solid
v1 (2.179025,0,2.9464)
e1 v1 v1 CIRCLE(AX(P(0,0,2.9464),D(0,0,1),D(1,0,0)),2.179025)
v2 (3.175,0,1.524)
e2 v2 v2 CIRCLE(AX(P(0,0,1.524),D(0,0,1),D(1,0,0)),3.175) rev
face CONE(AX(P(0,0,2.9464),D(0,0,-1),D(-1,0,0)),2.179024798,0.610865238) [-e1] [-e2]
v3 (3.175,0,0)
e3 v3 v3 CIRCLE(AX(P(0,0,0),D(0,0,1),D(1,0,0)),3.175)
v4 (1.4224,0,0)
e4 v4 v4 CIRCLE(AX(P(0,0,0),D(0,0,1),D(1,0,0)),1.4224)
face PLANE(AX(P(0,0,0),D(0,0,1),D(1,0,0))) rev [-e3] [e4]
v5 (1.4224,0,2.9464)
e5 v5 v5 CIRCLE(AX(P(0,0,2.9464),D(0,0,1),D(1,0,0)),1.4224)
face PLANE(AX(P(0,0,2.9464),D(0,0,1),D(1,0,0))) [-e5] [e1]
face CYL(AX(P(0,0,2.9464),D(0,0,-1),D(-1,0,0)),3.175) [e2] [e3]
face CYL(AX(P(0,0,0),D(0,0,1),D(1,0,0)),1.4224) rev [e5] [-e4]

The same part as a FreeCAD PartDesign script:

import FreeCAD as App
import Part
import Sketcher

V = App.Vector
Q = App.Units.Quantity


def edges_at(feature, points):
    """Names of the edges that pass closest to the given points."""
    edges = feature.Shape.Edges
    near = lambda p: min(range(len(edges)), key=lambda i: edges[i].distToShape(Part.Vertex(*p))[0])
    return sorted({f"Edge{near(p) + 1}" for p in points})

doc = App.newDocument("Part")
params = doc.addObject("Spreadsheet::Sheet", "Params")
for row, (alias, value) in enumerate([
    ("sketch1_diameter", "0.25 in"),
    ("pad1_length", "0.116 in"),
    ("sketch2_diameter", "0.112 in"),
    ("chamfer_size", "0.056 in"),
    ("chamfer_size2", "0.995975 mm"),
], start=1):
    params.set(f"A{row}", alias)
    params.set(f"B{row}", "=" + value)
    params.setAlias(f"B{row}", alias)

body = doc.addObject("PartDesign::Body", "Body")

# Sketch on XY plane
sketch1 = body.newObject("Sketcher::SketchObject", "Sketch")
sketch1.AttachmentSupport = (doc.getObject("XY_Plane"), [""])
sketch1.MapMode = "FlatFace"
sketch1.addGeometry(Part.Circle(V(0, 0, 0), V(0, 0, 1), 3.2), False)
sketch1.addConstraint(Sketcher.Constraint("Coincident", 0, 3, -1, 1))
sketch1.addConstraint(Sketcher.Constraint("Diameter", 0, Q("0.25 in")))
sketch1.setExpression("Constraints[1]", "Params.sketch1_diameter")
pad1 = body.newObject("PartDesign::Pad", "Pad")
pad1.Profile = sketch1
pad1.setExpression("Length", "Params.pad1_length")

# Sketch on XY plane
sketch2 = body.newObject("Sketcher::SketchObject", "Sketch001")
sketch2.AttachmentSupport = (doc.getObject("XY_Plane"), [""])
sketch2.MapMode = "FlatFace"
sketch2.AttachmentOffset = App.Placement(V(0, 0, 0.116 * 25.4), App.Rotation())
sketch2.addGeometry(Part.Circle(V(0, 0, 0), V(0, 0, 1), 1.4), False)
sketch2.addConstraint(Sketcher.Constraint("Coincident", 0, 3, -1, 1))
sketch2.addConstraint(Sketcher.Constraint("Diameter", 0, Q("0.112 in")))
sketch2.setExpression("Constraints[1]", "Params.sketch2_diameter")
pocket1 = body.newObject("PartDesign::Pocket", "Pocket")
pocket1.Profile = sketch2
pocket1.Type = "ThroughAll"
doc.recompute()

chamfer = body.newObject("PartDesign::Chamfer", "Chamfer")
chamfer.Base = (pocket1, edges_at(pocket1, [(-3.175, 0, 2.946)]))
chamfer.ChamferType = "Two distances"
chamfer.setExpression("Size", "Params.chamfer_size")
chamfer.setExpression("Size2", "Params.chamfer_size2")

doc.recompute()
